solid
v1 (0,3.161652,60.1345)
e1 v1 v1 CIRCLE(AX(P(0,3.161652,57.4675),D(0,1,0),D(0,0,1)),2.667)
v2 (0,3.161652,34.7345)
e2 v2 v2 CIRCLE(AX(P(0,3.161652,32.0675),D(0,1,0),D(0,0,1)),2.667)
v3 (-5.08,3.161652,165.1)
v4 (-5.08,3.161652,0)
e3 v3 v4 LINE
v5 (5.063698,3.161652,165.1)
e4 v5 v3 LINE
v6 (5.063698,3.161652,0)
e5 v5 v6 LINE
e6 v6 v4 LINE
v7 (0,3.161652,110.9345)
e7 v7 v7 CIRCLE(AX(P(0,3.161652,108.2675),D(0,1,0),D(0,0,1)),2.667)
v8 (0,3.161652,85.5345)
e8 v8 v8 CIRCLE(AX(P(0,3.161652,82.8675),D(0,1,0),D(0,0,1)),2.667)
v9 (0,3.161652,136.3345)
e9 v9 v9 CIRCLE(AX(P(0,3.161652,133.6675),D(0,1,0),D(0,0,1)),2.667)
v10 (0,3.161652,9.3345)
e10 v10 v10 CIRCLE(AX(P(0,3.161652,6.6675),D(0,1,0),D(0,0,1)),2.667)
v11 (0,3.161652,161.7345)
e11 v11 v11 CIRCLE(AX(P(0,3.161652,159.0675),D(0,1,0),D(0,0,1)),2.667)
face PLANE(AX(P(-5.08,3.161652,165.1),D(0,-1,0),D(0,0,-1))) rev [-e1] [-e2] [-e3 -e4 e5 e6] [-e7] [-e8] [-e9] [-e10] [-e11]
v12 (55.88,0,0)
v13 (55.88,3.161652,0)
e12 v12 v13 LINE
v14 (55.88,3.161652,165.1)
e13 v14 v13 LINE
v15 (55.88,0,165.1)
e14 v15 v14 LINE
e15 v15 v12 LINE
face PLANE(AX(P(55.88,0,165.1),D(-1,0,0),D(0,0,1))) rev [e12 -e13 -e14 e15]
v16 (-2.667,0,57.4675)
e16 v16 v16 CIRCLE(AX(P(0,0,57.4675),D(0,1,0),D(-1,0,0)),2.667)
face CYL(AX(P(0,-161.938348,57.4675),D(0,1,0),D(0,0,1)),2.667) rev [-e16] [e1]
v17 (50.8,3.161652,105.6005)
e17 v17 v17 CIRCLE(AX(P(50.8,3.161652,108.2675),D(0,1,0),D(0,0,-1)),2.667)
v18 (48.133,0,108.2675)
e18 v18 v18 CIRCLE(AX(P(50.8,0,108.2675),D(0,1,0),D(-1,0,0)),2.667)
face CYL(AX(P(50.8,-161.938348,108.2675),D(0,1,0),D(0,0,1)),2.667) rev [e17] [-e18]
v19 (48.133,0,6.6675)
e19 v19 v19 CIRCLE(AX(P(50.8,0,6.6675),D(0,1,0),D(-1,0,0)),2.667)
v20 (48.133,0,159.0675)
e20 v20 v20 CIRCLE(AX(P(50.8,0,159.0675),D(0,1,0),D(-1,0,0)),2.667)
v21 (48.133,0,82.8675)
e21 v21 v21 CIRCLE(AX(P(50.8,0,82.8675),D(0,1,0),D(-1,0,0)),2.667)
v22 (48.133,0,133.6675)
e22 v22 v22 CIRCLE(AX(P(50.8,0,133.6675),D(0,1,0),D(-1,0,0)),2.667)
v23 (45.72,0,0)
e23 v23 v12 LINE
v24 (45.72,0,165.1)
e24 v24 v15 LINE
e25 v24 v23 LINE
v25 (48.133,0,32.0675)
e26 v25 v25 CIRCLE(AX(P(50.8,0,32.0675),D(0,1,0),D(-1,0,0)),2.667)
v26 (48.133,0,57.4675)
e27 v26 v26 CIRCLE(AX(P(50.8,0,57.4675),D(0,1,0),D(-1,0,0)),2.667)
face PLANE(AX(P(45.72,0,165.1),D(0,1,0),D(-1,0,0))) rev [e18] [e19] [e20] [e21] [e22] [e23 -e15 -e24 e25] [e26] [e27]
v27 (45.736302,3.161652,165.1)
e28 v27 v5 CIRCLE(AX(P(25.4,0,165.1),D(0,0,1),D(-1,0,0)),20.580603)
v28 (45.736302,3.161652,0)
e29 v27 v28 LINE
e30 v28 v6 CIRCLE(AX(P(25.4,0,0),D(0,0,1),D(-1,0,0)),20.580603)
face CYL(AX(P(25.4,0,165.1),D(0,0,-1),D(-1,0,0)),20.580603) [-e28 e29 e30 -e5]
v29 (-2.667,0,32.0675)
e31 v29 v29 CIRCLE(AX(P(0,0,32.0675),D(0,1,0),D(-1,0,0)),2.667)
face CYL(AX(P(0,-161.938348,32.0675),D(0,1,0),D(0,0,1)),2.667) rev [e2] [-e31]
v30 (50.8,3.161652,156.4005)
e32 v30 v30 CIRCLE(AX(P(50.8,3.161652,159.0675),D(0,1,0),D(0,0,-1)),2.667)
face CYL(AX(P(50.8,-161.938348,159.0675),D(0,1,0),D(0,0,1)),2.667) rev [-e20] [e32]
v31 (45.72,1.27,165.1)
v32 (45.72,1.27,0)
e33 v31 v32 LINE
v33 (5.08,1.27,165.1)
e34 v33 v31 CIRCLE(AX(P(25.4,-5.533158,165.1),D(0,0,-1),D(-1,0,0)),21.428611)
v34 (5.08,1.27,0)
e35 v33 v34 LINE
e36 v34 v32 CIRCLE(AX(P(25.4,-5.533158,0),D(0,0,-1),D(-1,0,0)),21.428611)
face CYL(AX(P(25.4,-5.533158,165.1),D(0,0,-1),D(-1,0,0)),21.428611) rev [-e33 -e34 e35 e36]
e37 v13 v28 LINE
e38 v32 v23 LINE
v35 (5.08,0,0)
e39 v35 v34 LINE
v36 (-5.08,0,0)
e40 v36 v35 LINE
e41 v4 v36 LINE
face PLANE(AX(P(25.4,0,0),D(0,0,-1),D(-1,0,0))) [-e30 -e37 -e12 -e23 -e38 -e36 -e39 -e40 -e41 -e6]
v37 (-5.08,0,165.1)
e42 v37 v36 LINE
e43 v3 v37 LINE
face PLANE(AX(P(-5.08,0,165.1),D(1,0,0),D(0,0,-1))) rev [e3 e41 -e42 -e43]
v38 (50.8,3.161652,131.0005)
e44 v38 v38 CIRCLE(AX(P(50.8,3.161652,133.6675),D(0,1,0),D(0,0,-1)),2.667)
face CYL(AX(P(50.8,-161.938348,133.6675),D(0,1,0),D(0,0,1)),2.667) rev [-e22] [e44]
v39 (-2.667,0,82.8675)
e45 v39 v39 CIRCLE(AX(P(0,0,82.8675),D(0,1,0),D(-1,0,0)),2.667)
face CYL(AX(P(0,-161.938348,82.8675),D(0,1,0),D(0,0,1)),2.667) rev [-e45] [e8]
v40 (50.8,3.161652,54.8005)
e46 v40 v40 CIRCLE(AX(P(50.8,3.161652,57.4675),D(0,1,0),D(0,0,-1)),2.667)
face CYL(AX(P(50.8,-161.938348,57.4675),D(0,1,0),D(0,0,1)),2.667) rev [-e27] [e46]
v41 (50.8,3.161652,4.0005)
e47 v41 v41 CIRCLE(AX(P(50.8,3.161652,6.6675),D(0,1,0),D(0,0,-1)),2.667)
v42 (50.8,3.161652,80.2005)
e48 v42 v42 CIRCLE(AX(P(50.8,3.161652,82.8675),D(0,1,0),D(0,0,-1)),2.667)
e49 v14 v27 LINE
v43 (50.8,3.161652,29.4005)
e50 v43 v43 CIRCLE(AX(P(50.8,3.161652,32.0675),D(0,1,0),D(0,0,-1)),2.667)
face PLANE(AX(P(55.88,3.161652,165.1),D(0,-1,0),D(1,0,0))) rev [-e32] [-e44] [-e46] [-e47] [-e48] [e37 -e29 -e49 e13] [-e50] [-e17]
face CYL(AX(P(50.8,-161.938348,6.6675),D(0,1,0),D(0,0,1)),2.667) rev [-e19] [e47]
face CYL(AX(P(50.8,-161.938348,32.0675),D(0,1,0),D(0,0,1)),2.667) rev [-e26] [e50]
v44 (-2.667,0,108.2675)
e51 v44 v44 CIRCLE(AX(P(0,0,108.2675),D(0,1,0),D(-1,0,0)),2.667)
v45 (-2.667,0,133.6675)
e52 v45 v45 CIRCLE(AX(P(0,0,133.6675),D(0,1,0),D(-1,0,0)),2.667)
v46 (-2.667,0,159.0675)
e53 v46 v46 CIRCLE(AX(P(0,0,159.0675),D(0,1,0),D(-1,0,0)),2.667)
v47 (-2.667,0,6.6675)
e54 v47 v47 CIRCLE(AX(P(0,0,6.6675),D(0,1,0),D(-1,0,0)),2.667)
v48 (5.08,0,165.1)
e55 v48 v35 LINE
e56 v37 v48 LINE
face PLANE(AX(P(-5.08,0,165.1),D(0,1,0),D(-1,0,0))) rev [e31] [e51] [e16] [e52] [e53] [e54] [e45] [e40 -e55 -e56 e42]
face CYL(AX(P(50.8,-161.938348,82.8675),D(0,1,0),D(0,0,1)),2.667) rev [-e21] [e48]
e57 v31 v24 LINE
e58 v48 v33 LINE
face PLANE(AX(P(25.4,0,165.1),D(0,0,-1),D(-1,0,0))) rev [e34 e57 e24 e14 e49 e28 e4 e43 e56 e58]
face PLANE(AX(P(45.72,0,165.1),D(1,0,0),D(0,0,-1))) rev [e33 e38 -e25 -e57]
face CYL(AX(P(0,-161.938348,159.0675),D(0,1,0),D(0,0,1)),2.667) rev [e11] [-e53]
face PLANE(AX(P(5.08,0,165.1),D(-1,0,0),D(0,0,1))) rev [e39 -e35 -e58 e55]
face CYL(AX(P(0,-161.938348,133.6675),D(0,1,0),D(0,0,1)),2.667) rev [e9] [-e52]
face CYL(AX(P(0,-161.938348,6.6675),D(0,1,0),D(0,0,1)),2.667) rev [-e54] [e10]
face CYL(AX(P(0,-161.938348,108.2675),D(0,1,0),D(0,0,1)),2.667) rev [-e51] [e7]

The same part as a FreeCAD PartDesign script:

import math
import FreeCAD as App
import Part
import Sketcher
from FreeCAD import Vector
Q = App.Units.Quantity

doc = App.newDocument("Part")
params = doc.addObject("Spreadsheet::Sheet", "Params")
for row, (alias, value) in enumerate([
    ("sketch1_width", "0.4 in"),
    ("sketch1_height", "0.05 in"),
    ("pad1_length", "6.5 in"),
    ("sketch2_diameter", "0.21 in"),
    ("pocket1_length", "6.5 in"),
], start=1):
    params.set(f"A{row}", alias)
    params.set(f"B{row}", "=" + value)
    params.setAlias(f"B{row}", alias)

body = doc.addObject("PartDesign::Body", "Body")

# Sketch on XY plane
sketch1 = doc.addObject("Sketcher::SketchObject", "Sketch")
body.addObject(sketch1)
sketch1.AttachmentSupport = (doc.XY_Plane, [""])
sketch1.MapMode = "FlatFace"
sketch1.addGeometry([
    Part.LineSegment(Vector(-5.1, 0, 0), Vector(5.1, 0, 0)),  # 0
    Part.LineSegment(Vector(5.1, 0, 0), Vector(5.1, 1.3, 0)),  # 1
    Part.ArcOfCircle(Part.Circle(Vector(25.4, -5.5, 0), Vector(0, 0, 1), 21.4), math.radians(19), math.radians(161)),  # 2
    Part.LineSegment(Vector(45.7, 1.3, 0), Vector(45.7, 0, 0)),  # 3
    Part.LineSegment(Vector(45.7, 0, 0), Vector(55.9, 0, 0)),  # 4
    Part.LineSegment(Vector(55.9, 0, 0), Vector(55.9, 3.2, 0)),  # 5
    Part.LineSegment(Vector(55.9, 3.2, 0), Vector(45.7, 3.2, 0)),  # 6
    Part.ArcOfCircle(Part.Circle(Vector(25.4, 0, 0), Vector(0, 0, 1), 20.6), math.radians(9), math.radians(171)),  # 7
    Part.LineSegment(Vector(5.1, 3.2, 0), Vector(-5.1, 3.2, 0)),  # 8
    Part.LineSegment(Vector(-5.1, 3.2, 0), Vector(-5.1, 0, 0)),  # 9
], False)
sketch1.addConstraint([
    Sketcher.Constraint("Coincident", 0, 2, 1, 1),
    Sketcher.Constraint("Coincident", 1, 2, 2, 2),
    Sketcher.Constraint("Coincident", 2, 1, 3, 1),
    Sketcher.Constraint("Coincident", 3, 2, 4, 1),
    Sketcher.Constraint("Coincident", 4, 2, 5, 1),
    Sketcher.Constraint("Coincident", 5, 2, 6, 1),
    Sketcher.Constraint("Coincident", 6, 2, 7, 1),
    Sketcher.Constraint("Coincident", 7, 2, 8, 1),
    Sketcher.Constraint("Coincident", 8, 2, 9, 1),
    Sketcher.Constraint("Coincident", 9, 2, 0, 1),
    Sketcher.Constraint("Horizontal", 0),
    Sketcher.Constraint("Vertical", 1),
    Sketcher.Constraint("Vertical", 3),
    Sketcher.Constraint("Horizontal", 4),
    Sketcher.Constraint("Vertical", 5),
    Sketcher.Constraint("Horizontal", 6),
    Sketcher.Constraint("Horizontal", 8),
    Sketcher.Constraint("Vertical", 9),
    Sketcher.Constraint("Symmetric", 0, 2, 9, 2, -1, 1),
    Sketcher.Constraint("PointOnObject", 7, 3, -1),
    Sketcher.Constraint("PointOnObject", 3, 2, -1),
    Sketcher.Constraint("Horizontal", 1, 2, 2, 1),
    Sketcher.Constraint("Horizontal", 6, 2, 7, 2),
    Sketcher.Constraint("Vertical", 2, 3, 7, 3),
    Sketcher.Constraint("Equal", 0, 4),
    Sketcher.Constraint("DistanceX", 0, 1, 0, 2, Q("0.4 in")),
    Sketcher.Constraint("DistanceX", -1, 1, 2, 3, Q("1 in")),
    Sketcher.Constraint("DistanceY", 1, 1, 1, 2, Q("0.05 in")),
    Sketcher.Constraint("Radius", 2, Q("21.428611 mm")),
    Sketcher.Constraint("DistanceX", 6, 2, 6, 1, Q("10.143698 mm")),
    Sketcher.Constraint("Radius", 7, Q("20.580603 mm")),
])
sketch1.setExpression("Constraints[25]", "Params.sketch1_width")
sketch1.setExpression("Constraints[27]", "Params.sketch1_height")
pad1 = doc.addObject("PartDesign::Pad", "Pad")
body.addObject(pad1)
pad1.Profile = sketch1
pad1.setExpression("Length", "Params.pad1_length")

# Sketch on XZ plane
sketch2 = doc.addObject("Sketcher::SketchObject", "Sketch001")
body.addObject(sketch2)
sketch2.AttachmentSupport = (doc.XZ_Plane, [""])
sketch2.MapMode = "FlatFace"
sketch2.AttachmentOffset = App.Placement(Vector(0, 0, -3.161652), App.Rotation())
sketch2.addGeometry([
    Part.Circle(Vector(0, 6.7, 0), Vector(0, 0, 1), 2.7),  # 0
    Part.Circle(Vector(0, 32.1, 0), Vector(0, 0, 1), 2.7),  # 1
    Part.Circle(Vector(0, 57.5, 0), Vector(0, 0, 1), 2.7),  # 2
    Part.Circle(Vector(0, 82.9, 0), Vector(0, 0, 1), 2.7),  # 3
    Part.Circle(Vector(0, 108.3, 0), Vector(0, 0, 1), 2.7),  # 4
    Part.Circle(Vector(0, 133.7, 0), Vector(0, 0, 1), 2.7),  # 5
    Part.Circle(Vector(0, 159.1, 0), Vector(0, 0, 1), 2.7),  # 6
    Part.Circle(Vector(50.8, 159.1, 0), Vector(0, 0, 1), 2.7),  # 7
    Part.Circle(Vector(50.8, 133.7, 0), Vector(0, 0, 1), 2.7),  # 8
    Part.Circle(Vector(50.8, 108.3, 0), Vector(0, 0, 1), 2.7),  # 9
    Part.Circle(Vector(50.8, 82.9, 0), Vector(0, 0, 1), 2.7),  # 10
    Part.Circle(Vector(50.8, 57.5, 0), Vector(0, 0, 1), 2.7),  # 11
    Part.Circle(Vector(50.8, 32.1, 0), Vector(0, 0, 1), 2.7),  # 12
    Part.Circle(Vector(50.8, 6.7, 0), Vector(0, 0, 1), 2.7),  # 13
], False)
sketch2.addConstraint([
    Sketcher.Constraint("Equal", 0, 1),
    Sketcher.Constraint("Equal", 1, 2),
    Sketcher.Constraint("Equal", 2, 3),
    Sketcher.Constraint("Equal", 3, 4),
    Sketcher.Constraint("Equal", 4, 5),
    Sketcher.Constraint("Equal", 5, 6),
    Sketcher.Constraint("Equal", 6, 7),
    Sketcher.Constraint("Equal", 7, 8),
    Sketcher.Constraint("Equal", 8, 9),
    Sketcher.Constraint("Equal", 9, 10),
    Sketcher.Constraint("Equal", 10, 11),
    Sketcher.Constraint("Equal", 11, 12),
    Sketcher.Constraint("Equal", 12, 13),
    Sketcher.Constraint("PointOnObject", 0, 3, -2),
    Sketcher.Constraint("PointOnObject", 1, 3, -2),
    Sketcher.Constraint("PointOnObject", 2, 3, -2),
    Sketcher.Constraint("PointOnObject", 3, 3, -2),
    Sketcher.Constraint("PointOnObject", 4, 3, -2),
    Sketcher.Constraint("PointOnObject", 5, 3, -2),
    Sketcher.Constraint("PointOnObject", 6, 3, -2),
    Sketcher.Constraint("Horizontal", 6, 3, 7, 3),
    Sketcher.Constraint("Horizontal", 5, 3, 8, 3),
    Sketcher.Constraint("Horizontal", 4, 3, 9, 3),
    Sketcher.Constraint("Horizontal", 3, 3, 10, 3),
    Sketcher.Constraint("Horizontal", 2, 3, 11, 3),
    Sketcher.Constraint("Horizontal", 1, 3, 12, 3),
    Sketcher.Constraint("Horizontal", 0, 3, 13, 3),
    Sketcher.Constraint("Vertical", 7, 3, 8, 3),
    Sketcher.Constraint("Vertical", 8, 3, 9, 3),
    Sketcher.Constraint("Vertical", 9, 3, 10, 3),
    Sketcher.Constraint("Vertical", 10, 3, 11, 3),
    Sketcher.Constraint("Vertical", 11, 3, 12, 3),
    Sketcher.Constraint("Vertical", 12, 3, 13, 3),
    Sketcher.Constraint("Diameter", 0, Q("0.21 in")),
    Sketcher.Constraint("DistanceX", -1, 1, 7, 3, Q("2 in")),
    Sketcher.Constraint("DistanceY", 0, 3, 1, 3, Q("1 in")),
    Sketcher.Constraint("DistanceY", 1, 3, 2, 3, Q("1 in")),
    Sketcher.Constraint("DistanceY", 2, 3, 3, 3, Q("1 in")),
    Sketcher.Constraint("DistanceY", 3, 3, 4, 3, Q("1 in")),
    Sketcher.Constraint("DistanceY", 4, 3, 5, 3, Q("1 in")),
    Sketcher.Constraint("DistanceY", 5, 3, 6, 3, Q("1 in")),
    Sketcher.Constraint("DistanceY", -1, 1, 0, 3, Q("0.2625 in")),
])
sketch2.setExpression("Constraints[33]", "Params.sketch2_diameter")
pocket1 = doc.addObject("PartDesign::Pocket", "Pocket")
body.addObject(pocket1)
pocket1.Profile = sketch2
pocket1.setExpression("Length", "Params.pocket1_length")
pocket1.Reversed = True

doc.recompute()
